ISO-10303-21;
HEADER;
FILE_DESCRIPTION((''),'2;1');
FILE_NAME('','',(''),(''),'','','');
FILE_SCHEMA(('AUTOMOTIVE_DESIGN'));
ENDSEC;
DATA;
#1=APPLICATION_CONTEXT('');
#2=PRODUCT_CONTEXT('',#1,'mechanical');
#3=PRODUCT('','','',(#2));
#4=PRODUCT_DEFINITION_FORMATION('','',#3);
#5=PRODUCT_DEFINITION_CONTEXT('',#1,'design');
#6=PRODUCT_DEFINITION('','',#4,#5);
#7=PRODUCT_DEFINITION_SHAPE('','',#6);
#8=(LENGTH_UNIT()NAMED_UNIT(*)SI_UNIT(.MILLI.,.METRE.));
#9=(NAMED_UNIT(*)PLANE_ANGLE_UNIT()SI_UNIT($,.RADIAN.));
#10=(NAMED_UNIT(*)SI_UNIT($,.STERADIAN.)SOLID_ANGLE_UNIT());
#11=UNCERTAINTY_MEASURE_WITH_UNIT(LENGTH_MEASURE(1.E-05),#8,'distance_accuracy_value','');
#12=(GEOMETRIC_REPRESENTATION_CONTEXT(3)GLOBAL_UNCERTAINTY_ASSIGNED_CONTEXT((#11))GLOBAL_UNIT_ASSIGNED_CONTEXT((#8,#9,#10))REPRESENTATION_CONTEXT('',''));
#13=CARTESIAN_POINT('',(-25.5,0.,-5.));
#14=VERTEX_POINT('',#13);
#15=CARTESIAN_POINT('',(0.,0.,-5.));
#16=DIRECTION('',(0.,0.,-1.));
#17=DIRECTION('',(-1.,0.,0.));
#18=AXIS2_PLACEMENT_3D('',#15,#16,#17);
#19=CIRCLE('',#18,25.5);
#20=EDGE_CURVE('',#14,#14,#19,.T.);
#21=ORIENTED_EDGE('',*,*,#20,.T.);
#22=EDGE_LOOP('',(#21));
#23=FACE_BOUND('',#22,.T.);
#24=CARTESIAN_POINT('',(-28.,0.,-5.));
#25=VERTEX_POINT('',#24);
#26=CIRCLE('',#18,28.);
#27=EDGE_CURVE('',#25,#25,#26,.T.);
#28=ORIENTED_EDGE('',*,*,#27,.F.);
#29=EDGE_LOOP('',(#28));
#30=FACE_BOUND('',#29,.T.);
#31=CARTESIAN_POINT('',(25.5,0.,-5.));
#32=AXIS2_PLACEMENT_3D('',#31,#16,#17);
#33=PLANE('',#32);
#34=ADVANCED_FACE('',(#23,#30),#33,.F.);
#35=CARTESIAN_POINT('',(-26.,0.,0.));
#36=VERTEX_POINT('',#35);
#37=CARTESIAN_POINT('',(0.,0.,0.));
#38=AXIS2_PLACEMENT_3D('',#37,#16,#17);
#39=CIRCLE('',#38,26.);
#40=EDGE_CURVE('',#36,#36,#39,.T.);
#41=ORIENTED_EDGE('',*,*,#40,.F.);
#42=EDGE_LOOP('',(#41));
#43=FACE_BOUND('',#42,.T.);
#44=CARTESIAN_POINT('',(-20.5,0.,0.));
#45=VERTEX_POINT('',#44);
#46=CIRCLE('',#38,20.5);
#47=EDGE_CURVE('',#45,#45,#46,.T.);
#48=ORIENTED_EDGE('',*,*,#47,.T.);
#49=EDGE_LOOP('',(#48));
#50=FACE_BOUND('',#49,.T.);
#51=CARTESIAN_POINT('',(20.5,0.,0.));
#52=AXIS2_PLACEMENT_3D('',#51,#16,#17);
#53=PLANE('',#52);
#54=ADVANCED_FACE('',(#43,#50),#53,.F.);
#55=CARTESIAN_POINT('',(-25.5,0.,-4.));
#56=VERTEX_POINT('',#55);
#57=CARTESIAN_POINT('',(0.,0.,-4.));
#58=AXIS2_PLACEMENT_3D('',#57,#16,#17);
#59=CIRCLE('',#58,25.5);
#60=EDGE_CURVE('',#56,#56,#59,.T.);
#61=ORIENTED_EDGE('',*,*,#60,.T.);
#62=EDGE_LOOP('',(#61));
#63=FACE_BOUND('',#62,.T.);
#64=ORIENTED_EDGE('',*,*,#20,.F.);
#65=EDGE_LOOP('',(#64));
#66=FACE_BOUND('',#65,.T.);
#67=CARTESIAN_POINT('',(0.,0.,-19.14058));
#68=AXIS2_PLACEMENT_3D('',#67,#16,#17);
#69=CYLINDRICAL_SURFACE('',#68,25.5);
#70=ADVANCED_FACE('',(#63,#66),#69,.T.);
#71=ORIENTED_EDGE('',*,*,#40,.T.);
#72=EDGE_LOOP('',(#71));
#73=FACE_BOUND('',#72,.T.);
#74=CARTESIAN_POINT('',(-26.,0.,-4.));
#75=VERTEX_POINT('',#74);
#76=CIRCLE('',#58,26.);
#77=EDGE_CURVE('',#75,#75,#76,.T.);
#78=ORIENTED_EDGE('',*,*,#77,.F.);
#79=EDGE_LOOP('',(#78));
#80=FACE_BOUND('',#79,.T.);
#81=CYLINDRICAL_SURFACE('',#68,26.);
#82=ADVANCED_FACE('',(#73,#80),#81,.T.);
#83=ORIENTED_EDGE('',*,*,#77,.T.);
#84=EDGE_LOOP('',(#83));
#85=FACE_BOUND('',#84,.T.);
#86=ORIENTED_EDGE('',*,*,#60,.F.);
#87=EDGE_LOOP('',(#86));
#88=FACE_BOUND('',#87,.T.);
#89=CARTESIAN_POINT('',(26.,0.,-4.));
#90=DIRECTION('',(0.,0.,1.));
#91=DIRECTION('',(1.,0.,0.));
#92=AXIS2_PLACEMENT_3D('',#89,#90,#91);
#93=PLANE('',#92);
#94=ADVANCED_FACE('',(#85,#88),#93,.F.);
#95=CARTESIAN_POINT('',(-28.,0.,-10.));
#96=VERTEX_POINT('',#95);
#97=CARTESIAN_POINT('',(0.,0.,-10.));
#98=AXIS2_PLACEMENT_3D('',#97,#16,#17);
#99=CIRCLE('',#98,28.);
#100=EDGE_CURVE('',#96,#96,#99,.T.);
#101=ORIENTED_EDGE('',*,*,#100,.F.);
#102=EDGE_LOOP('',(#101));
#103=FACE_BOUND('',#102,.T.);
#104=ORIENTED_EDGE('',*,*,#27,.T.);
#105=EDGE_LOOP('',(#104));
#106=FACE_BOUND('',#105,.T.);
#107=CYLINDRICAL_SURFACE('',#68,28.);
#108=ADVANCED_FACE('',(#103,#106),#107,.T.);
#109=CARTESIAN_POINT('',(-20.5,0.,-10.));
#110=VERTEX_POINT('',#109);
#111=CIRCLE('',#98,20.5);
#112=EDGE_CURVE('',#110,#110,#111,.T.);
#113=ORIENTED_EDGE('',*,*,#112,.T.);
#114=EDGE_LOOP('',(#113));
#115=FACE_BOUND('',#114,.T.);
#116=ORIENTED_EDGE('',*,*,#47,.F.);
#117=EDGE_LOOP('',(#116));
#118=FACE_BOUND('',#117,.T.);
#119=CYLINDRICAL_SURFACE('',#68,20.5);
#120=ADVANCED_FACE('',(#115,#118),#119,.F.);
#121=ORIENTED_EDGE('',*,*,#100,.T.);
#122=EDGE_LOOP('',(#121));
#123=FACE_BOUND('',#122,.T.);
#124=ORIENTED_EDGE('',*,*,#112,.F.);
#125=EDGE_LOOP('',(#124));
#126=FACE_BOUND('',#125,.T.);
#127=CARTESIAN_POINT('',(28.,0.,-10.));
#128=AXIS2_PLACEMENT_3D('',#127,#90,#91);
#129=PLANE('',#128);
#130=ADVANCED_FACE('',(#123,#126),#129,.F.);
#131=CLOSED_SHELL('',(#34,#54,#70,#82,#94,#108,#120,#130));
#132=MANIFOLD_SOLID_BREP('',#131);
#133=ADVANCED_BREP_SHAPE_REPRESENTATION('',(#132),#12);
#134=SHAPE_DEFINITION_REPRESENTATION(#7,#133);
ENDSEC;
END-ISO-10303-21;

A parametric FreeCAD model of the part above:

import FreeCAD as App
import Part
import Sketcher
from FreeCAD import Vector
Q = App.Units.Quantity

doc = App.newDocument("Part")
params = doc.addObject("Spreadsheet::Sheet", "Params")
for row, (alias, value) in enumerate([
    ("sketch1_height", "10 mm"),
    ("sketch1_height2", "4 mm"),
    ("sketch1_height3", "1 mm"),
    ("sketch1_width", "5.5 mm"),
    ("sketch1_width2", "0.5 mm"),
    ("revolution_angle", "360 deg"),
], start=1):
    params.set(f"A{row}", alias)
    params.set(f"B{row}", "=" + value)
    params.setAlias(f"B{row}", alias)

body = doc.addObject("PartDesign::Body", "Body")

# Sketch on XZ plane
sketch1 = doc.addObject("Sketcher::SketchObject", "Sketch")
body.addObject(sketch1)
sketch1.AttachmentSupport = (doc.XZ_Plane, [""])
sketch1.MapMode = "FlatFace"
sketch1.addGeometry([
    Part.LineSegment(Vector(20.5, -10, 0), Vector(20.5, 0, 0)),  # 0
    Part.LineSegment(Vector(20.5, 0, 0), Vector(26, 0, 0)),  # 1
    Part.LineSegment(Vector(26, 0, 0), Vector(26, -4, 0)),  # 2
    Part.LineSegment(Vector(26, -4, 0), Vector(25.5, -4, 0)),  # 3
    Part.LineSegment(Vector(25.5, -4, 0), Vector(25.5, -5, 0)),  # 4
    Part.LineSegment(Vector(25.5, -5, 0), Vector(28, -5, 0)),  # 5
    Part.LineSegment(Vector(28, -5, 0), Vector(28, -10, 0)),  # 6
    Part.LineSegment(Vector(28, -10, 0), Vector(20.5, -10, 0)),  # 7
], False)
sketch1.addConstraint([
    Sketcher.Constraint("Coincident", 0, 2, 1, 1),
    Sketcher.Constraint("Coincident", 1, 2, 2, 1),
    Sketcher.Constraint("Coincident", 2, 2, 3, 1),
    Sketcher.Constraint("Coincident", 3, 2, 4, 1),
    Sketcher.Constraint("Coincident", 4, 2, 5, 1),
    Sketcher.Constraint("Coincident", 5, 2, 6, 1),
    Sketcher.Constraint("Coincident", 6, 2, 7, 1),
    Sketcher.Constraint("Coincident", 7, 2, 0, 1),
    Sketcher.Constraint("Vertical", 0),
    Sketcher.Constraint("Horizontal", 1),
    Sketcher.Constraint("Vertical", 2),
    Sketcher.Constraint("Horizontal", 3),
    Sketcher.Constraint("Vertical", 4),
    Sketcher.Constraint("Horizontal", 5),
    Sketcher.Constraint("Vertical", 6),
    Sketcher.Constraint("Horizontal", 7),
    Sketcher.Constraint("PointOnObject", 0, 2, -1),
    Sketcher.Constraint("DistanceY", 0, 1, 0, 2, Q("10 mm")),
    Sketcher.Constraint("DistanceY", 2, 2, 2, 1, Q("4 mm")),
    Sketcher.Constraint("DistanceY", 4, 2, 4, 1, Q("1 mm")),
    Sketcher.Constraint("DistanceX", 1, 1, 1, 2, Q("5.5 mm")),
    Sketcher.Constraint("DistanceX", 3, 2, 3, 1, Q("0.5 mm")),
    Sketcher.Constraint("DistanceX", 5, 1, 5, 2, Q("2.5 mm")),
    Sketcher.Constraint("DistanceX", -1, 1, 1, 2, Q("26 mm")),
])
sketch1.setExpression("Constraints[17]", "Params.sketch1_height")
sketch1.setExpression("Constraints[18]", "Params.sketch1_height2")
sketch1.setExpression("Constraints[19]", "Params.sketch1_height3")
sketch1.setExpression("Constraints[20]", "Params.sketch1_width")
sketch1.setExpression("Constraints[21]", "Params.sketch1_width2")
revolution = doc.addObject("PartDesign::Revolution", "Revolution")
body.addObject(revolution)
revolution.Profile = sketch1
revolution.ReferenceAxis = (sketch1, ["V_Axis"])
revolution.setExpression("Angle", "Params.revolution_angle")

doc.recompute()
